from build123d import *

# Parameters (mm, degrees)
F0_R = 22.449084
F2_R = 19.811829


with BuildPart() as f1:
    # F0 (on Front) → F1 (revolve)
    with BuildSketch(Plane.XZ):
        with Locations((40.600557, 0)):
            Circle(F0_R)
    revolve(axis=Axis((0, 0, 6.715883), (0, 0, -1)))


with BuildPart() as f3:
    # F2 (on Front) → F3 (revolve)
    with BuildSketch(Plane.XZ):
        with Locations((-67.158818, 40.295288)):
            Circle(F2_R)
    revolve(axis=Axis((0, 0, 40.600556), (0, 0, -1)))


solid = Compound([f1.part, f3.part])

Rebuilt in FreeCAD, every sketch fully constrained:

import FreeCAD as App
import Part
import Sketcher

V = App.Vector

doc = App.newDocument("Part")
body = doc.addObject("PartDesign::Body", "Body")

# Sketch on XZ plane
sketch1 = body.newObject("Sketcher::SketchObject", "Sketch")
sketch1.AttachmentSupport = (doc.getObject("XZ_Plane"), [""])
sketch1.MapMode = "FlatFace"
sketch1.addGeometry(Part.Circle(V(40.600557, 0, 0), V(0, 0, 1), 22.449084), False)
sketch1.addConstraint([
    Sketcher.Constraint("PointOnObject", 0, 3, -1),
    Sketcher.Constraint("Diameter", 0, 44.898168),
    Sketcher.Constraint("DistanceX", -1, 1, 0, 3, 40.600557),
])
revolution = body.newObject("PartDesign::Revolution", "Revolution")
revolution.Profile = sketch1
revolution.ReferenceAxis = (sketch1, ["V_Axis"])
revolution.Angle = 360
body2 = doc.addObject("PartDesign::Body", "Body001")

# Sketch on XZ plane
sketch2 = body2.newObject("Sketcher::SketchObject", "Sketch001")
sketch2.AttachmentSupport = (doc.getObject("XZ_Plane001"), [""])
sketch2.MapMode = "FlatFace"
sketch2.addGeometry(Part.Circle(V(-67.158818, 40.295288, 0), V(0, 0, 1), 19.811829), False)
sketch2.addConstraint([
    Sketcher.Constraint("Diameter", 0, 39.623658),
    Sketcher.Constraint("DistanceX", 0, 3, -1, 1, 67.158818),
    Sketcher.Constraint("DistanceY", -1, 1, 0, 3, 40.295288),
])
revolution2 = body2.newObject("PartDesign::Revolution", "Revolution001")
revolution2.Profile = sketch2
revolution2.ReferenceAxis = (sketch2, ["V_Axis"])
revolution2.Angle = 360

doc.recompute()
